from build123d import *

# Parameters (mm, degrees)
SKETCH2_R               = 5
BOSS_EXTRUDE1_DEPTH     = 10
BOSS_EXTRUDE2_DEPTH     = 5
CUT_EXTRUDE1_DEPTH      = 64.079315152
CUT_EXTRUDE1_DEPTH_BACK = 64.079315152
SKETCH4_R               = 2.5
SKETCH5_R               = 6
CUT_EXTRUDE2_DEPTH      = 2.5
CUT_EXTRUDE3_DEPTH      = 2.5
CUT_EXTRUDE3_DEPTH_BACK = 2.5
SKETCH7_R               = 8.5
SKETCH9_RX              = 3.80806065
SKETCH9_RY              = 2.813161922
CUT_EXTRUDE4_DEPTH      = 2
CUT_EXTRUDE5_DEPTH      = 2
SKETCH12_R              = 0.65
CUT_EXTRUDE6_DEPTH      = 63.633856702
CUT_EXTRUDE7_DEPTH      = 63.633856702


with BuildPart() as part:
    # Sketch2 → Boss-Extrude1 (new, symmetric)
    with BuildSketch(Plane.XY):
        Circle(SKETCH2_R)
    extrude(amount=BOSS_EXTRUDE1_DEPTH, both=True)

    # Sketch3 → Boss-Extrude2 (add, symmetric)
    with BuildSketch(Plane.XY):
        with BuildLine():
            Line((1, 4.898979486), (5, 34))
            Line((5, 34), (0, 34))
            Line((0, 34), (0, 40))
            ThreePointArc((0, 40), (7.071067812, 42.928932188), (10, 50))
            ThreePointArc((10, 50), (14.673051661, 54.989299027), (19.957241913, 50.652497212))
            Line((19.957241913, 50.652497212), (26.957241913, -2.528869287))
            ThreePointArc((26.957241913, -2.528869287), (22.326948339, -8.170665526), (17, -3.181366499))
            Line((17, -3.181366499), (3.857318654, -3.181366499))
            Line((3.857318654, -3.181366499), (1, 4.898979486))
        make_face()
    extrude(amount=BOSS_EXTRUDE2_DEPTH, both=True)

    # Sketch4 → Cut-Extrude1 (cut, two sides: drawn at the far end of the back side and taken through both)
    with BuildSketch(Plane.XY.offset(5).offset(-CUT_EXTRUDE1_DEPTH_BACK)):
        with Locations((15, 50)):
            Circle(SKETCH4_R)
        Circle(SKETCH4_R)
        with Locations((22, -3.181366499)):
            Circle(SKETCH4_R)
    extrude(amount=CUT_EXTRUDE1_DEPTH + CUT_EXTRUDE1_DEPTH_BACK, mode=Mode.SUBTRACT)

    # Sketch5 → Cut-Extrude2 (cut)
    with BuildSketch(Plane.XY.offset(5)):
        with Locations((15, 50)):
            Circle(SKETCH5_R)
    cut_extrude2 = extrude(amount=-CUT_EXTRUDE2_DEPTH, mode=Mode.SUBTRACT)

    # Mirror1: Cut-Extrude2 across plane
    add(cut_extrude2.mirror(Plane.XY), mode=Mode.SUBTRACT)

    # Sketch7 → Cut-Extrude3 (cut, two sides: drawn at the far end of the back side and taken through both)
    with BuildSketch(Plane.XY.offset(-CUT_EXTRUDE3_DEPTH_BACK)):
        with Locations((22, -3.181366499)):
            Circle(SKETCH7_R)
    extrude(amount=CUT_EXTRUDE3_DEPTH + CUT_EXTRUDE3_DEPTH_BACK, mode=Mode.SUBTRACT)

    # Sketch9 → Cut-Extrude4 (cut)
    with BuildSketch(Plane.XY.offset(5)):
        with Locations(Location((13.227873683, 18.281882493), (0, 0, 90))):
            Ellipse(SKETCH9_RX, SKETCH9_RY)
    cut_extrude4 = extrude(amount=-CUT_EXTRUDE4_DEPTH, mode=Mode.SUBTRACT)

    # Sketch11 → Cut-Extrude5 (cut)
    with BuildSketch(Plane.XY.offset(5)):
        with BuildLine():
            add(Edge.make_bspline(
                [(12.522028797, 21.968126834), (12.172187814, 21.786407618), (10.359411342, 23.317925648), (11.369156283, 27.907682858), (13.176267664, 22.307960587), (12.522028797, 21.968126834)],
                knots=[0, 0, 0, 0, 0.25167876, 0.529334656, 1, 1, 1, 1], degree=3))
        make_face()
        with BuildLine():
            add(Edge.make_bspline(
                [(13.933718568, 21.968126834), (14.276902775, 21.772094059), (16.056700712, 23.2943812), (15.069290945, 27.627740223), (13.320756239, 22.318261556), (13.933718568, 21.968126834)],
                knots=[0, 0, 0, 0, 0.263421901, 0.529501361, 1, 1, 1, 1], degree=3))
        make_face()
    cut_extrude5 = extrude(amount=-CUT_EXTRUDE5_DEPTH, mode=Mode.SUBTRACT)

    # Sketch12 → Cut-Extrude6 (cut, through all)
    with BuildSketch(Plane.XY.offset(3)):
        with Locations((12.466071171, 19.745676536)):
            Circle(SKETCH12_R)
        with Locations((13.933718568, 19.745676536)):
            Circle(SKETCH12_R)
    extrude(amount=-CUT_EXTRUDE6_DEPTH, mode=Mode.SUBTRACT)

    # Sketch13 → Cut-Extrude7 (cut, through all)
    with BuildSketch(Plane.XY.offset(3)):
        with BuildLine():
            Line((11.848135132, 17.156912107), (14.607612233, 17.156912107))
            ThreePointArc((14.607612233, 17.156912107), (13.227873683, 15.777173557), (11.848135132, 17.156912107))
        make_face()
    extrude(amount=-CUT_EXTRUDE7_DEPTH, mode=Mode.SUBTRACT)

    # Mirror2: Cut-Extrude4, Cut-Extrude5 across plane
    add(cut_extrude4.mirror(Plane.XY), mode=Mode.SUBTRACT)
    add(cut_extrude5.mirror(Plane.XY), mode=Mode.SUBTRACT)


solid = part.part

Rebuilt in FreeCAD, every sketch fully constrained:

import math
import FreeCAD as App
import Part
import Sketcher
from FreeCAD import Vector

doc = App.newDocument("Part")
params = doc.addObject("Spreadsheet::Sheet", "Params")
for row, (alias, value) in enumerate([
    ("sketch1_diameter", "10 mm"),
    ("pad1_length", "20 mm"),
    ("sketch2_radius", "5 mm"),
    ("sketch2_radius2", "10 mm"),
    ("sketch2_width", "5 mm"),
    ("sketch2_height", "6 mm"),
    ("pad2_length", "10 mm"),
    ("sketch3_diameter", "5 mm"),
    ("sketch4_diameter", "12 mm"),
    ("pocket2_length", "2.5 mm"),
    ("sketch5_diameter", "17 mm"),
    ("pocket3_length", "2.5 mm"),
    ("pocket3_length2", "2.5 mm"),
    ("pocket4_length", "2 mm"),
    ("pocket5_length", "2 mm"),
    ("sketch8_diameter", "1.3 mm"),
], start=1):
    params.set(f"A{row}", alias)
    params.set(f"B{row}", "=" + value)
    params.setAlias(f"B{row}", alias)

body = doc.addObject("PartDesign::Body", "Body")

# Sketch on XY plane
sketch1 = body.newObject("Sketcher::SketchObject", "Sketch")
sketch1.AttachmentSupport = (doc.getObject("XY_Plane"), [""])
sketch1.MapMode = "FlatFace"
sketch1.addGeometry(Part.Circle(Vector(0, 0, 0), Vector(0, 0, 1), 5), False)
sketch1.addConstraint([
    Sketcher.Constraint("Coincident", 0, 3, -1, 1),
    Sketcher.Constraint("Diameter", 0, 10.0),
])
sketch1.setExpression("Constraints[1]", "Params.sketch1_diameter")
pad1 = body.newObject("PartDesign::Pad", "Pad")
pad1.Profile = sketch1
pad1.setExpression("Length", "Params.pad1_length")
pad1.Midplane = True

# Sketch on XY plane
sketch2 = body.newObject("Sketcher::SketchObject", "Sketch001")
sketch2.AttachmentSupport = (doc.getObject("XY_Plane"), [""])
sketch2.MapMode = "FlatFace"
sketch2.addGeometry([
    Part.LineSegment(Vector(5, 34, 0), Vector(1, 4.898979, 0)),  # 0
    Part.LineSegment(Vector(1, 4.898979, 0), Vector(3.857319, -3.181366, 0)),  # 1
    Part.LineSegment(Vector(3.857319, -3.181366, 0), Vector(17, -3.181366, 0)),  # 2
    Part.ArcOfCircle(Part.Circle(Vector(22, -3.181366, 0), Vector(0, 0, 1), 5), math.radians(180), math.radians(367.498454)),  # 3
    Part.LineSegment(Vector(26.957242, -2.528869, 0), Vector(19.957242, 50.652497, 0)),  # 4
    Part.ArcOfCircle(Part.Circle(Vector(15, 50, 0), Vector(0, 0, 1), 5), math.radians(7.498454), math.radians(180)),  # 5
    Part.ArcOfCircle(Part.Circle(Vector(0, 50, 0), Vector(0, 0, 1), 10), math.radians(-90), math.radians(0)),  # 6
    Part.LineSegment(Vector(0, 40, 0), Vector(0, 34, 0)),  # 7
    Part.LineSegment(Vector(0, 34, 0), Vector(5, 34, 0)),  # 8
], False)
sketch2.addConstraint([
    Sketcher.Constraint("Coincident", 0, 2, 1, 1),
    Sketcher.Constraint("Coincident", 1, 2, 2, 1),
    Sketcher.Constraint("Coincident", 2, 2, 3, 1),
    Sketcher.Constraint("Tangent", 3, 2, 4, 1),
    Sketcher.Constraint("Tangent", 4, 2, 5, 1),
    Sketcher.Constraint("Tangent", 5, 2, 6, 2),
    Sketcher.Constraint("Coincident", 6, 1, 7, 1),
    Sketcher.Constraint("Coincident", 7, 2, 8, 1),
    Sketcher.Constraint("Coincident", 8, 2, 0, 1),
    Sketcher.Constraint("Horizontal", 2),
    Sketcher.Constraint("Vertical", 7),
    Sketcher.Constraint("Horizontal", 8),
    Sketcher.Constraint("Equal", 3, 5),
    Sketcher.Constraint("PointOnObject", 6, 3, -2),
    Sketcher.Constraint("PointOnObject", 6, 1, -2),
    Sketcher.Constraint("Horizontal", 5, 3, 6, 3),
    Sketcher.Constraint("Horizontal", 3, 3, 1, 2),
    Sketcher.Constraint("Radius", 3, 5.0),
    Sketcher.Constraint("Radius", 6, 10.0),
    Sketcher.Constraint("DistanceX", 8, 1, 8, 2, 5.0),
    Sketcher.Constraint("DistanceY", 7, 2, 7, 1, 6.0),
    Sketcher.Constraint("DistanceX", -1, 1, 3, 3, 22.0),
    Sketcher.Constraint("DistanceY", -1, 1, 5, 3, 50.0),
    Sketcher.Constraint("DistanceX", -1, 1, 0, 2, 1.0),
    Sketcher.Constraint("DistanceX", 2, 1, 2, 2, 13.142681),
    Sketcher.Constraint("Distance", 0, 29.374639),
    Sketcher.Constraint("DistanceY", 3, 2, -1, 1, 2.528869),
])
sketch2.setExpression("Constraints[17]", "Params.sketch2_radius")
sketch2.setExpression("Constraints[18]", "Params.sketch2_radius2")
sketch2.setExpression("Constraints[19]", "Params.sketch2_width")
sketch2.setExpression("Constraints[20]", "Params.sketch2_height")
pad2 = body.newObject("PartDesign::Pad", "Pad001")
pad2.Profile = sketch2
pad2.setExpression("Length", "Params.pad2_length")
pad2.Midplane = True

# Sketch on XY plane
sketch3 = body.newObject("Sketcher::SketchObject", "Sketch002")
sketch3.AttachmentSupport = (doc.getObject("XY_Plane"), [""])
sketch3.MapMode = "FlatFace"
sketch3.AttachmentOffset = App.Placement(Vector(0, 0, 5), App.Rotation())
sketch3.addGeometry([
    Part.Circle(Vector(15, 50, 0), Vector(0, 0, 1), 2.5),
    Part.Circle(Vector(0, 0, 0), Vector(0, 0, 1), 2.5),
    Part.Circle(Vector(22, -3.181366, 0), Vector(0, 0, 1), 2.5),
], False)
sketch3.addConstraint([
    Sketcher.Constraint("Coincident", 1, 3, -1, 1),
    Sketcher.Constraint("Equal", 0, 1),
    Sketcher.Constraint("Equal", 1, 2),
    Sketcher.Constraint("Diameter", 0, 5.0),
    Sketcher.Constraint("DistanceX", -1, 1, 0, 3, 15.0),
    Sketcher.Constraint("DistanceY", -1, 1, 0, 3, 50.0),
    Sketcher.Constraint("DistanceX", -1, 1, 2, 3, 22.0),
    Sketcher.Constraint("DistanceY", 2, 3, -1, 1, 3.181366),
])
sketch3.setExpression("Constraints[3]", "Params.sketch3_diameter")
pocket1 = body.newObject("PartDesign::Pocket", "Pocket")
pocket1.Profile = sketch3
pocket1.Type = "ThroughAll"
pocket1.Midplane = True

# Sketch on XY plane
sketch4 = body.newObject("Sketcher::SketchObject", "Sketch003")
sketch4.AttachmentSupport = (doc.getObject("XY_Plane"), [""])
sketch4.MapMode = "FlatFace"
sketch4.AttachmentOffset = App.Placement(Vector(0, 0, 5), App.Rotation())
sketch4.addGeometry(Part.Circle(Vector(15, 50, 0), Vector(0, 0, 1), 6), False)
sketch4.addConstraint([
    Sketcher.Constraint("Diameter", 0, 12.0),
    Sketcher.Constraint("DistanceX", -1, 1, 0, 3, 15.0),
    Sketcher.Constraint("DistanceY", -1, 1, 0, 3, 50.0),
])
sketch4.setExpression("Constraints[0]", "Params.sketch4_diameter")
pocket2 = body.newObject("PartDesign::Pocket", "Pocket001")
pocket2.Profile = sketch4
pocket2.setExpression("Length", "Params.pocket2_length")
doc.recompute()

mirrored = body.newObject("PartDesign::Mirrored", "Mirrored")
mirrored.Originals = [pocket2]
mirrored.MirrorPlane = (doc.getObject("XY_Plane"), [""])
body.Tip = mirrored

# Sketch on XY plane
sketch5 = body.newObject("Sketcher::SketchObject", "Sketch004")
sketch5.AttachmentSupport = (doc.getObject("XY_Plane"), [""])
sketch5.MapMode = "FlatFace"
sketch5.addGeometry(Part.Circle(Vector(22, -3.181366, 0), Vector(0, 0, 1), 8.5), False)
sketch5.addConstraint([
    Sketcher.Constraint("Diameter", 0, 17.0),
    Sketcher.Constraint("DistanceX", -1, 1, 0, 3, 22.0),
    Sketcher.Constraint("DistanceY", 0, 3, -1, 1, 3.181366),
])
sketch5.setExpression("Constraints[0]", "Params.sketch5_diameter")
pocket3 = body.newObject("PartDesign::Pocket", "Pocket002")
pocket3.Profile = sketch5
pocket3.Type = "TwoLengths"
pocket3.setExpression("Length", "Params.pocket3_length")
pocket3.setExpression("Length2", "Params.pocket3_length2")
pocket3.Reversed = True

# Sketch on XY plane
sketch6 = body.newObject("Sketcher::SketchObject", "Sketch005")
sketch6.AttachmentSupport = (doc.getObject("XY_Plane"), [""])
sketch6.MapMode = "FlatFace"
sketch6.AttachmentOffset = App.Placement(Vector(0, 0, 5), App.Rotation())
sketch6.addGeometry(Part.Ellipse(Vector(13.227874, 22.089943, 0), Vector(10.414712, 18.281882, 0), Vector(13.227874, 18.281882, 0)), False)
sketch6.addConstraint(Sketcher.Constraint("Block", 0))
pocket4 = body.newObject("PartDesign::Pocket", "Pocket003")
pocket4.Profile = sketch6
pocket4.setExpression("Length", "Params.pocket4_length")

# Sketch on XY plane
sketch7 = body.newObject("Sketcher::SketchObject", "Sketch006")
sketch7.AttachmentSupport = (doc.getObject("XY_Plane"), [""])
sketch7.MapMode = "FlatFace"
sketch7.AttachmentOffset = App.Placement(Vector(0, 0, 5), App.Rotation())
sketch7.addGeometry([
    Part.BSplineCurve([Vector(12.522029, 21.968127, 0), Vector(12.172188, 21.786408, 0), Vector(10.359411, 23.317926, 0), Vector(11.369156, 27.907683, 0), Vector(13.176268, 22.307961, 0), Vector(12.522029, 21.968127, 0)], [4, 1, 1, 4], [0, 0.25167876, 0.529334656, 1], False, 3, [1, 1, 1, 1, 1, 1], False),
    Part.BSplineCurve([Vector(13.933719, 21.968127, 0), Vector(14.276903, 21.772094, 0), Vector(16.056701, 23.294381, 0), Vector(15.069291, 27.62774, 0), Vector(13.320756, 22.318262, 0), Vector(13.933719, 21.968127, 0)], [4, 1, 1, 4], [0, 0.263421901, 0.529501361, 1], False, 3, [1, 1, 1, 1, 1, 1], False),
], False)
sketch7.addConstraint([
    Sketcher.Constraint("Block", 0),
    Sketcher.Constraint("Block", 1),
])
pocket5 = body.newObject("PartDesign::Pocket", "Pocket004")
pocket5.Profile = sketch7
pocket5.setExpression("Length", "Params.pocket5_length")

# Sketch on XY plane
sketch8 = body.newObject("Sketcher::SketchObject", "Sketch007")
sketch8.AttachmentSupport = (doc.getObject("XY_Plane"), [""])
sketch8.MapMode = "FlatFace"
sketch8.AttachmentOffset = App.Placement(Vector(0, 0, 3), App.Rotation())
sketch8.addGeometry([
    Part.Circle(Vector(12.466071, 19.745677, 0), Vector(0, 0, 1), 0.65),
    Part.Circle(Vector(13.933719, 19.745677, 0), Vector(0, 0, 1), 0.65),
], False)
sketch8.addConstraint([
    Sketcher.Constraint("Equal", 0, 1),
    Sketcher.Constraint("Horizontal", 0, 3, 1, 3),
    Sketcher.Constraint("Diameter", 0, 1.3),
    Sketcher.Constraint("DistanceX", -1, 1, 0, 3, 12.466071),
    Sketcher.Constraint("DistanceX", -1, 1, 1, 3, 13.933719),
    Sketcher.Constraint("DistanceY", -1, 1, 0, 3, 19.745677),
])
sketch8.setExpression("Constraints[2]", "Params.sketch8_diameter")
pocket6 = body.newObject("PartDesign::Pocket", "Pocket005")
pocket6.Profile = sketch8
pocket6.Type = "ThroughAll"

# Sketch on XY plane
sketch9 = body.newObject("Sketcher::SketchObject", "Sketch008")
sketch9.AttachmentSupport = (doc.getObject("XY_Plane"), [""])
sketch9.MapMode = "FlatFace"
sketch9.AttachmentOffset = App.Placement(Vector(0, 0, 3), App.Rotation())
sketch9.addGeometry([
    Part.LineSegment(Vector(14.607612, 17.156912, 0), Vector(11.848135, 17.156912, 0)),
    Part.ArcOfCircle(Part.Circle(Vector(13.227874, 17.156912, 0), Vector(0, 0, 1), 1.379739), math.radians(180), math.radians(360)),
], False)
sketch9.addConstraint([
    Sketcher.Constraint("Coincident", 0, 1, 1, 2),
    Sketcher.Constraint("Coincident", 1, 1, 0, 2),
    Sketcher.Constraint("Horizontal", 0),
    Sketcher.Constraint("Horizontal", 1, 3, 0, 1),
    Sketcher.Constraint("Radius", 1, 1.379739),
    Sketcher.Constraint("DistanceX", -1, 1, 1, 3, 13.227874),
    Sketcher.Constraint("DistanceY", -1, 1, 1, 3, 17.156912),
])
pocket7 = body.newObject("PartDesign::Pocket", "Pocket006")
pocket7.Profile = sketch9
pocket7.Type = "ThroughAll"
doc.recompute()

mirrored2 = body.newObject("PartDesign::Mirrored", "Mirrored001")
mirrored2.Originals = [pocket4, pocket5]
mirrored2.MirrorPlane = (doc.getObject("XY_Plane"), [""])
body.Tip = mirrored2

doc.recompute()
